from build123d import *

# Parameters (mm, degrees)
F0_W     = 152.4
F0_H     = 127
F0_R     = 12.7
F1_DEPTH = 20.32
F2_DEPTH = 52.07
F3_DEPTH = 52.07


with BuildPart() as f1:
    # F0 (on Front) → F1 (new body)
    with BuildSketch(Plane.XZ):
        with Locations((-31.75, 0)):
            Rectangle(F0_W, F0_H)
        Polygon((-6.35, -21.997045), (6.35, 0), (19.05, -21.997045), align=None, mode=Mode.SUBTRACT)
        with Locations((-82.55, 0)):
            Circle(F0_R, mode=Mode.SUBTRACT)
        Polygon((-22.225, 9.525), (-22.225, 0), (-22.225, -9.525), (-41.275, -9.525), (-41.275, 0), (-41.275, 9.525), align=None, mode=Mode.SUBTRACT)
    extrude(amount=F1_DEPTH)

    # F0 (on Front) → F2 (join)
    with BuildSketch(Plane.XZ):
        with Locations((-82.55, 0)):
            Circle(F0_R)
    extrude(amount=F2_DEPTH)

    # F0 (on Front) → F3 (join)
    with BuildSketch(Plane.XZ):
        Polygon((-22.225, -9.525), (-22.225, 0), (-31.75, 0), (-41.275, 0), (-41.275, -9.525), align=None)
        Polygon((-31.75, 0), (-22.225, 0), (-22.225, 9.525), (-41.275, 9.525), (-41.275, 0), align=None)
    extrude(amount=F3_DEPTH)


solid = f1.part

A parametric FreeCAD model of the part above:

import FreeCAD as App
import Part
import Sketcher
Q = App.Units.Quantity

doc = App.newDocument("Part")
params = doc.addObject("Spreadsheet::Sheet", "Params")
for row, (alias, value) in enumerate([
    ("sketch1_diameter", "1 in"),
    ("sketch1_width", "6 in"),
    ("sketch1_width2", "1 in"),
    ("sketch1_height", "5 in"),
    ("sketch1_length", "1 in"),
    ("pad1_length", "0.8 in"),
    ("sketch2_diameter", "1 in"),
    ("pad2_length", "2.05 in"),
    ("sketch3_width", "0.75 in"),
    ("pad3_length", "2.05 in"),
], start=1):
    params.set(f"A{row}", alias)
    params.set(f"B{row}", "=" + value)
    params.setAlias(f"B{row}", alias)

body = doc.addObject("PartDesign::Body", "Body")

# Sketch on XZ plane
sketch1 = doc.addObject("Sketcher::SketchObject", "Sketch")
body.addObject(sketch1)
sketch1.AttachmentSupport = (doc.XZ_Plane, [""])
sketch1.MapMode = "FlatFace"
sketch1.addGeometry([
    Part.LineSegment(App.Vector(-108, 64, 0), App.Vector(-108, -64, 0)),  # 0
    Part.LineSegment(App.Vector(-108, -64, 0), App.Vector(44, -64, 0)),  # 1
    Part.LineSegment(App.Vector(44, -64, 0), App.Vector(44, 64, 0)),  # 2
    Part.LineSegment(App.Vector(44, 64, 0), App.Vector(-108, 64, 0)),  # 3
    Part.LineSegment(App.Vector(19, -22, 0), App.Vector(-6, -22, 0)),  # 4
    Part.LineSegment(App.Vector(-6, -22, 0), App.Vector(6, 0, 0)),  # 5
    Part.LineSegment(App.Vector(6, 0, 0), App.Vector(19, -22, 0)),  # 6
    Part.Circle(App.Vector(-83, 0, 0), App.Vector(0, 0, 1), 13),  # 7
    Part.LineSegment(App.Vector(-41, 10, 0), App.Vector(-22, 10, 0)),  # 8
    Part.LineSegment(App.Vector(-22, 10, 0), App.Vector(-22, -10, 0)),  # 9
    Part.LineSegment(App.Vector(-22, -10, 0), App.Vector(-41, -10, 0)),  # 10
    Part.LineSegment(App.Vector(-41, -10, 0), App.Vector(-41, 10, 0)),  # 11
], False)
sketch1.addConstraint([
    Sketcher.Constraint("Coincident", 0, 2, 1, 1),
    Sketcher.Constraint("Coincident", 1, 2, 2, 1),
    Sketcher.Constraint("Coincident", 2, 2, 3, 1),
    Sketcher.Constraint("Coincident", 3, 2, 0, 1),
    Sketcher.Constraint("Coincident", 4, 2, 5, 1),
    Sketcher.Constraint("Coincident", 5, 2, 6, 1),
    Sketcher.Constraint("Coincident", 6, 2, 4, 1),
    Sketcher.Constraint("Coincident", 8, 2, 9, 1),
    Sketcher.Constraint("Coincident", 9, 2, 10, 1),
    Sketcher.Constraint("Coincident", 10, 2, 11, 1),
    Sketcher.Constraint("Coincident", 11, 2, 8, 1),
    Sketcher.Constraint("Vertical", 0),
    Sketcher.Constraint("Horizontal", 1),
    Sketcher.Constraint("Vertical", 2),
    Sketcher.Constraint("Horizontal", 3),
    Sketcher.Constraint("Horizontal", 4),
    Sketcher.Constraint("Horizontal", 8),
    Sketcher.Constraint("Vertical", 9),
    Sketcher.Constraint("Horizontal", 10),
    Sketcher.Constraint("Vertical", 11),
    Sketcher.Constraint("PointOnObject", 7, 3, -1),
    Sketcher.Constraint("PointOnObject", 5, 2, -1),
    Sketcher.Constraint("Equal", 10, 9),
    Sketcher.Constraint("Equal", 5, 6),
    Sketcher.Constraint("Diameter", 7, Q("1 in")),
    Sketcher.Constraint("DistanceX", 1, 1, 1, 2, Q("6 in")),
    Sketcher.Constraint("DistanceX", 4, 2, 4, 1, Q("1 in")),
    Sketcher.Constraint("DistanceY", 0, 2, 0, 1, Q("5 in")),
    Sketcher.Constraint("Distance", 5, Q("1 in")),
    Sketcher.Constraint("DistanceX", 0, 2, 7, 3, Q("1 in")),
    Sketcher.Constraint("DistanceX", 4, 2, 1, 2, Q("2 in")),
    Sketcher.Constraint("DistanceX", 8, 1, 8, 2, Q("0.75 in")),
    Sketcher.Constraint("DistanceY", 0, 2, -1, 1, Q("2.5 in")),
    Sketcher.Constraint("DistanceX", 7, 3, -1, 1, Q("3.25 in")),
    Sketcher.Constraint("DistanceX", 8, 2, -1, 1, Q("0.875 in")),
    Sketcher.Constraint("DistanceY", -1, 1, 8, 2, Q("0.375 in")),
])
sketch1.setExpression("Constraints[24]", "Params.sketch1_diameter")
sketch1.setExpression("Constraints[25]", "Params.sketch1_width")
sketch1.setExpression("Constraints[26]", "Params.sketch1_width2")
sketch1.setExpression("Constraints[27]", "Params.sketch1_height")
sketch1.setExpression("Constraints[28]", "Params.sketch1_length")
pad1 = doc.addObject("PartDesign::Pad", "Pad")
body.addObject(pad1)
pad1.Profile = sketch1
pad1.setExpression("Length", "Params.pad1_length")

# Sketch on XZ plane
sketch2 = doc.addObject("Sketcher::SketchObject", "Sketch001")
body.addObject(sketch2)
sketch2.AttachmentSupport = (doc.XZ_Plane, [""])
sketch2.MapMode = "FlatFace"
sketch2.addGeometry(Part.Circle(App.Vector(-83, 0, 0), App.Vector(0, 0, 1), 13), False)
sketch2.addConstraint([
    Sketcher.Constraint("PointOnObject", 0, 3, -1),
    Sketcher.Constraint("Diameter", 0, Q("1 in")),
    Sketcher.Constraint("DistanceX", 0, 3, -1, 1, Q("3.25 in")),
])
sketch2.setExpression("Constraints[1]", "Params.sketch2_diameter")
pad2 = doc.addObject("PartDesign::Pad", "Pad001")
body.addObject(pad2)
pad2.Profile = sketch2
pad2.setExpression("Length", "Params.pad2_length")

# Sketch on XZ plane
sketch3 = doc.addObject("Sketcher::SketchObject", "Sketch002")
body.addObject(sketch3)
sketch3.AttachmentSupport = (doc.XZ_Plane, [""])
sketch3.MapMode = "FlatFace"
sketch3.addGeometry([
    Part.LineSegment(App.Vector(-22, -10, 0), App.Vector(-22, 10, 0)),
    Part.LineSegment(App.Vector(-22, 10, 0), App.Vector(-41, 10, 0)),
    Part.LineSegment(App.Vector(-41, 10, 0), App.Vector(-41, -10, 0)),
    Part.LineSegment(App.Vector(-41, -10, 0), App.Vector(-22, -10, 0)),
], False)
sketch3.addConstraint([
    Sketcher.Constraint("Coincident", 0, 2, 1, 1),
    Sketcher.Constraint("Coincident", 1, 2, 2, 1),
    Sketcher.Constraint("Coincident", 2, 2, 3, 1),
    Sketcher.Constraint("Coincident", 3, 2, 0, 1),
    Sketcher.Constraint("Vertical", 0),
    Sketcher.Constraint("Horizontal", 1),
    Sketcher.Constraint("Vertical", 2),
    Sketcher.Constraint("Horizontal", 3),
    Sketcher.Constraint("Equal", 3, 0),
    Sketcher.Constraint("DistanceX", 1, 2, 1, 1, Q("0.75 in")),
    Sketcher.Constraint("DistanceX", 0, 2, -1, 1, Q("0.875 in")),
    Sketcher.Constraint("DistanceY", -1, 1, 0, 2, Q("0.375 in")),
])
sketch3.setExpression("Constraints[9]", "Params.sketch3_width")
pad3 = doc.addObject("PartDesign::Pad", "Pad002")
body.addObject(pad3)
pad3.Profile = sketch3
pad3.setExpression("Length", "Params.pad3_length")

doc.recompute()
